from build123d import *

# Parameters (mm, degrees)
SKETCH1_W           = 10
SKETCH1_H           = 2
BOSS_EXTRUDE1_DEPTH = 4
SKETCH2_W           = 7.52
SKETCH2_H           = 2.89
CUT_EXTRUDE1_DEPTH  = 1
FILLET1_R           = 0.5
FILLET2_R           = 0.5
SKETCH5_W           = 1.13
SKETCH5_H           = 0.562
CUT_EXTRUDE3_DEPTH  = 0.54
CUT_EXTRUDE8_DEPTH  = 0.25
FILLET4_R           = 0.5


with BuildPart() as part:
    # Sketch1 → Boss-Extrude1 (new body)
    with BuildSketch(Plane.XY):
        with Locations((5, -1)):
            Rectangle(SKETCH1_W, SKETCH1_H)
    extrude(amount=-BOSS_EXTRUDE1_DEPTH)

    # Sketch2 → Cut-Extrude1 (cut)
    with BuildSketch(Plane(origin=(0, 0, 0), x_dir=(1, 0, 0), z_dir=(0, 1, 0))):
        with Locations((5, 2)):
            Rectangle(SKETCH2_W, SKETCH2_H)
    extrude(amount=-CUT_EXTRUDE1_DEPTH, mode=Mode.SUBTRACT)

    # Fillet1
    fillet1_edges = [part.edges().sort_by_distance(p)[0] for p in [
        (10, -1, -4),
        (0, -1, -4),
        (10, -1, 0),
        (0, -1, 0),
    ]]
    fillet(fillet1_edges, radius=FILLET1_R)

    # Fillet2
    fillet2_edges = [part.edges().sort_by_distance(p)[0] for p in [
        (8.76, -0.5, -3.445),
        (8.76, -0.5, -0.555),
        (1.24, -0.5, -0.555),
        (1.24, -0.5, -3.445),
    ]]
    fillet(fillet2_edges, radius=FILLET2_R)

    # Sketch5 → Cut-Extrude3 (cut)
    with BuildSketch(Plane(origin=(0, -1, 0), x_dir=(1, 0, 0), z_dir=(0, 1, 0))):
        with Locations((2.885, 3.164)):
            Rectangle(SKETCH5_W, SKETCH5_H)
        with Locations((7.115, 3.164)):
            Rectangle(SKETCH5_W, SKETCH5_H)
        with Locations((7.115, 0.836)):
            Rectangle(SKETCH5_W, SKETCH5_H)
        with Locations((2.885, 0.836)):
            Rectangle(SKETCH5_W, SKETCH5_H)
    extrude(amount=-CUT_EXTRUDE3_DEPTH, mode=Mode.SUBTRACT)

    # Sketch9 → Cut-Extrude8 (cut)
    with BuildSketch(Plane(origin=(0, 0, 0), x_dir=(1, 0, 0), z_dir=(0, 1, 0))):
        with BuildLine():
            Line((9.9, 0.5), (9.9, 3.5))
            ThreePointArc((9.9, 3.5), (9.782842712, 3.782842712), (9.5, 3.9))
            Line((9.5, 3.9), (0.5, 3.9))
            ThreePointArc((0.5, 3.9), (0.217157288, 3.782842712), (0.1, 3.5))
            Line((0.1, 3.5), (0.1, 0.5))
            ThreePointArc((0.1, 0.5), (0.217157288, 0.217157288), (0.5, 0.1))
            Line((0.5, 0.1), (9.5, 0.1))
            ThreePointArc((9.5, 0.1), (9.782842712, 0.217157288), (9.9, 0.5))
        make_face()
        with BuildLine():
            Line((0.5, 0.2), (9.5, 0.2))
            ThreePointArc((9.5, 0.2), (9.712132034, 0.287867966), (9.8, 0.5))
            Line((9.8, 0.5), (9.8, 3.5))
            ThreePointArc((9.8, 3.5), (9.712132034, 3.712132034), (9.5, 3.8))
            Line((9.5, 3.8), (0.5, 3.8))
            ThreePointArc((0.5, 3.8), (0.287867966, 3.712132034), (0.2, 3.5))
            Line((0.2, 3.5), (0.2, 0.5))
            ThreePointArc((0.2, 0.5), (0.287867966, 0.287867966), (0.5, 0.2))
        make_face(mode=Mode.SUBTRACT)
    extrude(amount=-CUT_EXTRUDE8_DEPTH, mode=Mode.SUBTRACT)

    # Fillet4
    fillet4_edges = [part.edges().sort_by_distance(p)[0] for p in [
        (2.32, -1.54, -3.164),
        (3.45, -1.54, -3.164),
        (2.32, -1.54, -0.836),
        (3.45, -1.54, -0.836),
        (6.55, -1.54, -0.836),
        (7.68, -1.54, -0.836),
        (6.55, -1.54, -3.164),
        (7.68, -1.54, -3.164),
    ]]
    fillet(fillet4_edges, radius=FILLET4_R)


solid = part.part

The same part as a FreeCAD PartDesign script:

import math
import FreeCAD as App
import Part
import Sketcher
from FreeCAD import Vector


def edges_at(feature, points):
    """Names of the edges that pass closest to the given points."""
    edges = feature.Shape.Edges
    near = lambda p: min(range(len(edges)), key=lambda i: edges[i].distToShape(Part.Vertex(*p))[0])
    return sorted({f"Edge{near(p) + 1}" for p in points})


def add_polygon(sketch, points):
    """Adds a closed chain of lines whose ends are joined by coincident constraints."""
    first, n = sketch.GeometryCount, len(points)
    for a, b in zip(points, points[1:] + points[:1]):
        sketch.addGeometry(Part.LineSegment(App.Vector(*a, 0), App.Vector(*b, 0)), False)
    for i in range(n):
        sketch.addConstraint(Sketcher.Constraint("Coincident", first + i, 2, first + (i + 1) % n, 1))

doc = App.newDocument("Part")
params = doc.addObject("Spreadsheet::Sheet", "Params")
for row, (alias, value) in enumerate([
    ("sketch1_width", "10 mm"),
    ("sketch1_height", "2 mm"),
    ("pad1_length", "4 mm"),
    ("sketch2_width", "7.52 mm"),
    ("sketch2_height", "2.89 mm"),
    ("pocket1_length", "1 mm"),
    ("fillet_radius", "0.5 mm"),
    ("fillet2_radius", "0.5 mm"),
    ("sketch3_width", "1.13 mm"),
    ("pocket2_length", "0.54 mm"),
    ("sketch4_radius", "0.4 mm"),
    ("sketch4_radius2", "0.3 mm"),
    ("sketch4_width", "9 mm"),
    ("sketch4_height", "3 mm"),
    ("pocket3_length", "0.25 mm"),
    ("fillet3_radius", "0.5 mm"),
], start=1):
    params.set(f"A{row}", alias)
    params.set(f"B{row}", "=" + value)
    params.setAlias(f"B{row}", alias)

body = doc.addObject("PartDesign::Body", "Body")

# Sketch on XY plane
sketch1 = body.newObject("Sketcher::SketchObject", "Sketch")
sketch1.AttachmentSupport = (doc.getObject("XY_Plane"), [""])
sketch1.MapMode = "FlatFace"
add_polygon(sketch1, [(0, 0), (0, -2), (10, -2), (10, 0)])  # lines 0-3
sketch1.addConstraint(Sketcher.Constraint("Vertical", 0))
sketch1.addConstraint(Sketcher.Constraint("Horizontal", 1))
sketch1.addConstraint(Sketcher.Constraint("Vertical", 2))
sketch1.addConstraint(Sketcher.Constraint("Horizontal", 3))
sketch1.addConstraint(Sketcher.Constraint("Coincident", 3, 2, -1, 1))
sketch1.addConstraint(Sketcher.Constraint("DistanceX", 1, 1, 1, 2, 10.0))
sketch1.addConstraint(Sketcher.Constraint("DistanceY", 0, 2, 0, 1, 2.0))
sketch1.setExpression("Constraints[9]", "Params.sketch1_width")
sketch1.setExpression("Constraints[10]", "Params.sketch1_height")
pad1 = body.newObject("PartDesign::Pad", "Pad")
pad1.Profile = sketch1
pad1.setExpression("Length", "Params.pad1_length")
pad1.Reversed = True

# Sketch on XZ plane
sketch2 = body.newObject("Sketcher::SketchObject", "Sketch001")
sketch2.AttachmentSupport = (doc.getObject("XZ_Plane"), [""])
sketch2.MapMode = "FlatFace"
add_polygon(sketch2, [(1.2, -3.4), (1.2, -0.6), (8.8, -0.6), (8.8, -3.4)])  # lines 0-3
sketch2.addConstraint(Sketcher.Constraint("Vertical", 0))
sketch2.addConstraint(Sketcher.Constraint("Horizontal", 1))
sketch2.addConstraint(Sketcher.Constraint("Vertical", 2))
sketch2.addConstraint(Sketcher.Constraint("Horizontal", 3))
sketch2.addConstraint(Sketcher.Constraint("DistanceX", 1, 1, 1, 2, 7.52))
sketch2.addConstraint(Sketcher.Constraint("DistanceY", 0, 1, 0, 2, 2.89))
sketch2.addConstraint(Sketcher.Constraint("DistanceX", -1, 1, 0, 2, 1.24))
sketch2.addConstraint(Sketcher.Constraint("DistanceY", 0, 2, -1, 1, 0.555))
sketch2.setExpression("Constraints[8]", "Params.sketch2_width")
sketch2.setExpression("Constraints[9]", "Params.sketch2_height")
pocket1 = body.newObject("PartDesign::Pocket", "Pocket")
pocket1.Profile = sketch2
pocket1.setExpression("Length", "Params.pocket1_length")
pocket1.Reversed = True
doc.recompute()

fillet = body.newObject("PartDesign::Fillet", "Fillet")
fillet.Base = (pocket1, edges_at(pocket1, [
    (10, -1, -4),
    (0, -1, -4),
    (10, -1, 0),
    (0, -1, 0),
]))
fillet.setExpression("Radius", "Params.fillet_radius")
doc.recompute()

fillet2 = body.newObject("PartDesign::Fillet", "Fillet001")
fillet2.Base = (fillet, edges_at(fillet, [
    (8.76, -0.5, -3.445),
    (8.76, -0.5, -0.555),
    (1.24, -0.5, -0.555),
    (1.24, -0.5, -3.445),
]))
fillet2.setExpression("Radius", "Params.fillet2_radius")

# Sketch on XZ plane
sketch3 = body.newObject("Sketcher::SketchObject", "Sketch002")
sketch3.AttachmentSupport = (doc.getObject("XZ_Plane"), [""])
sketch3.MapMode = "FlatFace"
sketch3.AttachmentOffset = App.Placement(Vector(0, 0, 1), App.Rotation())
add_polygon(sketch3, [(2.3, -3.4), (2.3, -2.9), (3.5, -2.9), (3.5, -3.4)])  # lines 0-3
add_polygon(sketch3, [(6.5, -3.4), (6.5, -2.9), (7.7, -2.9), (7.7, -3.4)])  # lines 4-7
add_polygon(sketch3, [(6.5, -1.1), (6.5, -0.6), (7.7, -0.6), (7.7, -1.1)])  # lines 8-11
add_polygon(sketch3, [(2.3, -1.1), (2.3, -0.6), (3.5, -0.6), (3.5, -1.1)])  # lines 12-15
sketch3.addConstraint(Sketcher.Constraint("Vertical", 0))
sketch3.addConstraint(Sketcher.Constraint("Horizontal", 1))
sketch3.addConstraint(Sketcher.Constraint("Vertical", 2))
sketch3.addConstraint(Sketcher.Constraint("Horizontal", 3))
sketch3.addConstraint(Sketcher.Constraint("Vertical", 4))
sketch3.addConstraint(Sketcher.Constraint("Horizontal", 5))
sketch3.addConstraint(Sketcher.Constraint("Vertical", 6))
sketch3.addConstraint(Sketcher.Constraint("Horizontal", 7))
sketch3.addConstraint(Sketcher.Constraint("Vertical", 8))
sketch3.addConstraint(Sketcher.Constraint("Horizontal", 9))
sketch3.addConstraint(Sketcher.Constraint("Vertical", 10))
sketch3.addConstraint(Sketcher.Constraint("Horizontal", 11))
sketch3.addConstraint(Sketcher.Constraint("Vertical", 12))
sketch3.addConstraint(Sketcher.Constraint("Horizontal", 13))
sketch3.addConstraint(Sketcher.Constraint("Vertical", 14))
sketch3.addConstraint(Sketcher.Constraint("Horizontal", 15))
sketch3.addConstraint(Sketcher.Constraint("Horizontal", 1, 2, 4, 2))
sketch3.addConstraint(Sketcher.Constraint("Horizontal", 3, 2, 6, 2))
sketch3.addConstraint(Sketcher.Constraint("Horizontal", 9, 2, 12, 2))
sketch3.addConstraint(Sketcher.Constraint("Horizontal", 11, 2, 14, 2))
sketch3.addConstraint(Sketcher.Constraint("Vertical", 7, 2, 8, 2))
sketch3.addConstraint(Sketcher.Constraint("Vertical", 6, 2, 9, 2))
sketch3.addConstraint(Sketcher.Constraint("Vertical", 3, 2, 12, 2))
sketch3.addConstraint(Sketcher.Constraint("Vertical", 2, 2, 13, 2))
sketch3.addConstraint(Sketcher.Constraint("Equal", 3, 5))
sketch3.addConstraint(Sketcher.Constraint("Equal", 6, 8))
sketch3.addConstraint(Sketcher.Constraint("DistanceX", 1, 1, 1, 2, 1.13))
sketch3.addConstraint(Sketcher.Constraint("DistanceX", 1, 2, 4, 2, 3.1))
sketch3.addConstraint(Sketcher.Constraint("DistanceY", 0, 1, 0, 2, 0.562))
sketch3.addConstraint(Sketcher.Constraint("DistanceX", -1, 1, 0, 2, 2.32))
sketch3.addConstraint(Sketcher.Constraint("DistanceY", 7, 2, 8, 2, 2.89))
sketch3.addConstraint(Sketcher.Constraint("DistanceY", 0, 2, -1, 1, 2.883))
sketch3.setExpression("Constraints[42]", "Params.sketch3_width")
pocket2 = body.newObject("PartDesign::Pocket", "Pocket001")
pocket2.Profile = sketch3
pocket2.setExpression("Length", "Params.pocket2_length")
pocket2.Reversed = True

# Sketch on XZ plane
sketch4 = body.newObject("Sketcher::SketchObject", "Sketch003")
sketch4.AttachmentSupport = (doc.getObject("XZ_Plane"), [""])
sketch4.MapMode = "FlatFace"
sketch4.addGeometry(Part.LineSegment(Vector(9.9, -0.5, 0), Vector(9.9, -3.5, 0)), False)
sketch4.addGeometry(Part.ArcOfCircle(Part.Circle(Vector(9.5, -3.5, 0), Vector(0, 0, 1), 0.4), math.radians(-90), math.radians(0)), False)
sketch4.addGeometry(Part.LineSegment(Vector(9.5, -3.9, 0), Vector(0.5, -3.9, 0)), False)
sketch4.addGeometry(Part.ArcOfCircle(Part.Circle(Vector(0.5, -3.5, 0), Vector(0, 0, 1), 0.4), math.radians(-180), math.radians(-90)), False)
sketch4.addGeometry(Part.LineSegment(Vector(0.1, -3.5, 0), Vector(0.1, -0.5, 0)), False)
sketch4.addGeometry(Part.ArcOfCircle(Part.Circle(Vector(0.5, -0.5, 0), Vector(0, 0, 1), 0.4), math.radians(90), math.radians(180)), False)
sketch4.addGeometry(Part.LineSegment(Vector(0.5, -0.1, 0), Vector(9.5, -0.1, 0)), False)
sketch4.addGeometry(Part.ArcOfCircle(Part.Circle(Vector(9.5, -0.5, 0), Vector(0, 0, 1), 0.4), math.radians(0), math.radians(90)), False)
sketch4.addGeometry(Part.LineSegment(Vector(9.5, -0.2, 0), Vector(0.5, -0.2, 0)), False)
sketch4.addGeometry(Part.ArcOfCircle(Part.Circle(Vector(0.5, -0.5, 0), Vector(0, 0, 1), 0.3), math.radians(90), math.radians(180)), False)
sketch4.addGeometry(Part.LineSegment(Vector(0.2, -0.5, 0), Vector(0.2, -3.5, 0)), False)
sketch4.addGeometry(Part.ArcOfCircle(Part.Circle(Vector(0.5, -3.5, 0), Vector(0, 0, 1), 0.3), math.radians(-180), math.radians(-90)), False)
sketch4.addGeometry(Part.LineSegment(Vector(0.5, -3.8, 0), Vector(9.5, -3.8, 0)), False)
sketch4.addGeometry(Part.ArcOfCircle(Part.Circle(Vector(9.5, -3.5, 0), Vector(0, 0, 1), 0.3), math.radians(-90), math.radians(0)), False)
sketch4.addGeometry(Part.LineSegment(Vector(9.8, -3.5, 0), Vector(9.8, -0.5, 0)), False)
sketch4.addGeometry(Part.ArcOfCircle(Part.Circle(Vector(9.5, -0.5, 0), Vector(0, 0, 1), 0.3), math.radians(0), math.radians(90)), False)
sketch4.addConstraint(Sketcher.Constraint("Tangent", 0, 2, 1, 2))
sketch4.addConstraint(Sketcher.Constraint("Tangent", 1, 1, 2, 1))
sketch4.addConstraint(Sketcher.Constraint("Tangent", 2, 2, 3, 2))
sketch4.addConstraint(Sketcher.Constraint("Tangent", 3, 1, 4, 1))
sketch4.addConstraint(Sketcher.Constraint("Tangent", 4, 2, 5, 2))
sketch4.addConstraint(Sketcher.Constraint("Tangent", 5, 1, 6, 1))
sketch4.addConstraint(Sketcher.Constraint("Tangent", 6, 2, 7, 2))
sketch4.addConstraint(Sketcher.Constraint("Tangent", 7, 1, 0, 1))
sketch4.addConstraint(Sketcher.Constraint("Tangent", 8, 2, 9, 1))
sketch4.addConstraint(Sketcher.Constraint("Tangent", 9, 2, 10, 1))
sketch4.addConstraint(Sketcher.Constraint("Tangent", 10, 2, 11, 1))
sketch4.addConstraint(Sketcher.Constraint("Tangent", 11, 2, 12, 1))
sketch4.addConstraint(Sketcher.Constraint("Tangent", 12, 2, 13, 1))
sketch4.addConstraint(Sketcher.Constraint("Tangent", 13, 2, 14, 1))
sketch4.addConstraint(Sketcher.Constraint("Tangent", 14, 2, 15, 1))
sketch4.addConstraint(Sketcher.Constraint("Tangent", 15, 2, 8, 1))
sketch4.addConstraint(Sketcher.Constraint("Vertical", 0))
sketch4.addConstraint(Sketcher.Constraint("Horizontal", 2))
sketch4.addConstraint(Sketcher.Constraint("Vertical", 4))
sketch4.addConstraint(Sketcher.Constraint("Horizontal", 6))
sketch4.addConstraint(Sketcher.Constraint("Horizontal", 8))
sketch4.addConstraint(Sketcher.Constraint("Vertical", 10))
sketch4.addConstraint(Sketcher.Constraint("Horizontal", 12))
sketch4.addConstraint(Sketcher.Constraint("Vertical", 14))
sketch4.addConstraint(Sketcher.Constraint("Coincident", 9, 3, 5, 3))
sketch4.addConstraint(Sketcher.Constraint("Coincident", 11, 3, 3, 3))
sketch4.addConstraint(Sketcher.Constraint("Coincident", 13, 3, 1, 3))
sketch4.addConstraint(Sketcher.Constraint("Equal", 1, 3))
sketch4.addConstraint(Sketcher.Constraint("Equal", 3, 5))
sketch4.addConstraint(Sketcher.Constraint("Equal", 5, 7))
sketch4.addConstraint(Sketcher.Constraint("Equal", 13, 15))
sketch4.addConstraint(Sketcher.Constraint("Radius", 1, 0.4))
sketch4.addConstraint(Sketcher.Constraint("Radius", 9, 0.3))
sketch4.addConstraint(Sketcher.Constraint("DistanceX", 2, 2, 2, 1, 9.0))
sketch4.addConstraint(Sketcher.Constraint("DistanceY", 0, 2, 0, 1, 3.0))
sketch4.addConstraint(Sketcher.Constraint("DistanceX", -1, 1, 1, 3, 9.5))
sketch4.addConstraint(Sketcher.Constraint("DistanceY", 1, 3, -1, 1, 3.5))
sketch4.setExpression("Constraints[31]", "Params.sketch4_radius")
sketch4.setExpression("Constraints[32]", "Params.sketch4_radius2")
sketch4.setExpression("Constraints[33]", "Params.sketch4_width")
sketch4.setExpression("Constraints[34]", "Params.sketch4_height")
pocket3 = body.newObject("PartDesign::Pocket", "Pocket002")
pocket3.Profile = sketch4
pocket3.setExpression("Length", "Params.pocket3_length")
pocket3.Reversed = True
doc.recompute()

fillet3 = body.newObject("PartDesign::Fillet", "Fillet002")
fillet3.Base = (pocket3, edges_at(pocket3, [
    (2.32, -1.54, -3.164),
    (3.45, -1.54, -3.164),
    (2.32, -1.54, -0.836),
    (3.45, -1.54, -0.836),
    (6.55, -1.54, -0.836),
    (7.68, -1.54, -0.836),
    (6.55, -1.54, -3.164),
    (7.68, -1.54, -3.164),
]))
fillet3.setExpression("Radius", "Params.fillet3_radius")

doc.recompute()
